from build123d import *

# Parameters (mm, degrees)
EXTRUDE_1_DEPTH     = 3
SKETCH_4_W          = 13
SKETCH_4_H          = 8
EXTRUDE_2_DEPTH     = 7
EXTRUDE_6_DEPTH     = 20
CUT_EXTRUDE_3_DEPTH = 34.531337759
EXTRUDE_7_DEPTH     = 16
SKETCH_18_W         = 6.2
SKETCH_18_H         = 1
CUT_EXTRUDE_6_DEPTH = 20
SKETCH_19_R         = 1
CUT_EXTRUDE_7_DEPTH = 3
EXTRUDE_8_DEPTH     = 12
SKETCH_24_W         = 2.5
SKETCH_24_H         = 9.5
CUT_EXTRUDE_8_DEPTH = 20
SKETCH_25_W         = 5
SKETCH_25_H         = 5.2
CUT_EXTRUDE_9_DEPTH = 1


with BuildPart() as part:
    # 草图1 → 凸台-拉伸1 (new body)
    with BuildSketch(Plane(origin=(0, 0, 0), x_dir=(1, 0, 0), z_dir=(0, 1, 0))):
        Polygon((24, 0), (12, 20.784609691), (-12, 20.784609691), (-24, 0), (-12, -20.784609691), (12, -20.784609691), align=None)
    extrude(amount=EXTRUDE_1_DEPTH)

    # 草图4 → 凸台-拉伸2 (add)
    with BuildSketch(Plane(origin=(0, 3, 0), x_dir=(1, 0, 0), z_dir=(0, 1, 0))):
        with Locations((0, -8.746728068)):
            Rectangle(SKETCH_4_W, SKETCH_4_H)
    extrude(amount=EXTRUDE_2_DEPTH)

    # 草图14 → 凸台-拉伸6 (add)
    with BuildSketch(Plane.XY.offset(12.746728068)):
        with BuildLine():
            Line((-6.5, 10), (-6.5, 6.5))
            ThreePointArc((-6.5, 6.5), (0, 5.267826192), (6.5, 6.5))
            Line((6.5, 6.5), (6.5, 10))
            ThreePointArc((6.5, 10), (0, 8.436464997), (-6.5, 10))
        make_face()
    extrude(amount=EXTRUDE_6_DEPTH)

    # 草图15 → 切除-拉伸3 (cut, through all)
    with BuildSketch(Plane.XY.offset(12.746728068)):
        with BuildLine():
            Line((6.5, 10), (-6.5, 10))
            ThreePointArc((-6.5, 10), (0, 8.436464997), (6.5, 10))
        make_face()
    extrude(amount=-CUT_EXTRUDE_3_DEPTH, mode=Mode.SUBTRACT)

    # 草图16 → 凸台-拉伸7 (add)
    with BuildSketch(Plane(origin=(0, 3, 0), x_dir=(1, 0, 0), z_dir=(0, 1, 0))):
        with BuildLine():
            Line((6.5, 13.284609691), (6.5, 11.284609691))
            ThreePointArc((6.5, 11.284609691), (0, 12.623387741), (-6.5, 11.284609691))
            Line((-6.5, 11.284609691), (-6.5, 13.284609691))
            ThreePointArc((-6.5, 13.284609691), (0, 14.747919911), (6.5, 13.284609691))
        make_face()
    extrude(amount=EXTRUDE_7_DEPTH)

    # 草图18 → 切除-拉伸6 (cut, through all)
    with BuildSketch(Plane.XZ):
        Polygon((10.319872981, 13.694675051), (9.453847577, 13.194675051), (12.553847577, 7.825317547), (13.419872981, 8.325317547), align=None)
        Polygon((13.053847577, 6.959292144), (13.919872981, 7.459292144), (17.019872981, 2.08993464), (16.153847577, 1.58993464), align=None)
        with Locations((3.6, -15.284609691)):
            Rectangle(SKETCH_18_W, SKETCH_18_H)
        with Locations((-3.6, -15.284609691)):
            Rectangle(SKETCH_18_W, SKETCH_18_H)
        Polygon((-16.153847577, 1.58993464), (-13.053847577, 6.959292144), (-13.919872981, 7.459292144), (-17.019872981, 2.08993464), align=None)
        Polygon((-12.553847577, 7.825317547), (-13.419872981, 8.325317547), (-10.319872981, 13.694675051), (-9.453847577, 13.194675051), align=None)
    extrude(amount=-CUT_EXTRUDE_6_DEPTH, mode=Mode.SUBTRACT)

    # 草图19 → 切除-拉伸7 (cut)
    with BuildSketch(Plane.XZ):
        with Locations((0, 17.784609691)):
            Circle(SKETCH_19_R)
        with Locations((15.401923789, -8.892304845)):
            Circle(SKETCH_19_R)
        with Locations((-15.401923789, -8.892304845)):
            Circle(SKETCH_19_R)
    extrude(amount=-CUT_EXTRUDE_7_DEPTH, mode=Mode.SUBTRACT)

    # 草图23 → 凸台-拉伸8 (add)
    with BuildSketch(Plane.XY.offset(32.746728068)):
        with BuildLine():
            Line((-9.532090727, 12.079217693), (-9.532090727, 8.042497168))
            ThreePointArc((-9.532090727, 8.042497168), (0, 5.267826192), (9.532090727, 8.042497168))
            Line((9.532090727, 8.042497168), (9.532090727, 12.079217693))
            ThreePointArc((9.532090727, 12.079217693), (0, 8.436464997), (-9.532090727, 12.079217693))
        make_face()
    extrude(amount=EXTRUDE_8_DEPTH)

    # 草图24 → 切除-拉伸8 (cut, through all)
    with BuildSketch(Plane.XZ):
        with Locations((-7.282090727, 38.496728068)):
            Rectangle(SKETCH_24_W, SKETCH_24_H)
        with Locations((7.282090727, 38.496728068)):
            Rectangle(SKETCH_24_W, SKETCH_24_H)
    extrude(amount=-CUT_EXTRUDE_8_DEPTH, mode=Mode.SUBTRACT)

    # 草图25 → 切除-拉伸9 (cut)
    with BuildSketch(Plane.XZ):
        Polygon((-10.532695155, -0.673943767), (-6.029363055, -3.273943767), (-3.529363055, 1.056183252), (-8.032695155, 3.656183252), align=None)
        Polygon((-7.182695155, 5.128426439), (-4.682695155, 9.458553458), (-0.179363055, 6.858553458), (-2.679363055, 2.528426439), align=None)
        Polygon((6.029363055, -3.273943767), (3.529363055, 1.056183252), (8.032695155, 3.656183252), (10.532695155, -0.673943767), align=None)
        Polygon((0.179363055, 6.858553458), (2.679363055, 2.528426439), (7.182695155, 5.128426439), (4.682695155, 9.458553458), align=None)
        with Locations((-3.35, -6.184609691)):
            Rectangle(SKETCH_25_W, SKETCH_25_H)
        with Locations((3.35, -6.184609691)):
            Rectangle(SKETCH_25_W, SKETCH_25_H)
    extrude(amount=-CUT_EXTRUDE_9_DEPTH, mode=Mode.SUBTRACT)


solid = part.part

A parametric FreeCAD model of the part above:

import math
import FreeCAD as App
import Part
import Sketcher
Q = App.Units.Quantity


def add_polygon(sketch, points):
    """Adds a closed chain of lines whose ends are joined by coincident constraints."""
    first, n = sketch.GeometryCount, len(points)
    for a, b in zip(points, points[1:] + points[:1]):
        sketch.addGeometry(Part.LineSegment(App.Vector(*a, 0), App.Vector(*b, 0)), False)
    for i in range(n):
        sketch.addConstraint(Sketcher.Constraint("Coincident", first + i, 2, first + (i + 1) % n, 1))

doc = App.newDocument("Part")
body = doc.addObject("PartDesign::Body", "Body")

sketch1 = body.newObject("Sketcher::SketchObject", "Sketch")
sketch1.AttachmentSupport = (doc.getObject("XZ_Plane"), [""])
sketch1.MapMode = "FlatFace"
add_polygon(sketch1, [(24, 0), (12, -20.78461), (-12, -20.78461), (-24, 0), (-12, 20.78461), (12, 20.78461)])
sketch1.addConstraint(Sketcher.Constraint("Horizontal", 1))
sketch1.addConstraint(Sketcher.Constraint("Horizontal", 4))
sketch1.addConstraint(Sketcher.Constraint("Symmetric", 0, 2, 3, 2, -1, 1))
sketch1.addConstraint(Sketcher.Constraint("Symmetric", 2, 2, 5, 2, -1, 1))
sketch1.addConstraint(Sketcher.Constraint("PointOnObject", 2, 2, -1))
sketch1.addConstraint(Sketcher.Constraint("Parallel", 2, 5))
sketch1.addConstraint(Sketcher.Constraint("Vertical", 1, 2, 3, 2))
sketch1.addConstraint(Sketcher.Constraint("DistanceX", 1, 2, 1, 1, 24.0))
sketch1.addConstraint(Sketcher.Constraint("Angle", 0, Q("-120 deg")))
sketch1.addConstraint(Sketcher.Constraint("Distance", 0, 24.0))
pad1 = body.newObject("PartDesign::Pad", "Pad")
pad1.Profile = sketch1
pad1.Length = 3
pad1.Reversed = True

sketch2 = body.newObject("Sketcher::SketchObject", "Sketch001")
sketch2.AttachmentSupport = (doc.getObject("XZ_Plane"), [""])
sketch2.MapMode = "FlatFace"
sketch2.AttachmentOffset = App.Placement(App.Vector(0, 0, -3), App.Rotation())
add_polygon(sketch2, [(-6.5, 4.746728), (-6.5, 12.746728), (6.5, 12.746728), (6.5, 4.746728)])
sketch2.addConstraint(Sketcher.Constraint("Vertical", 0))
sketch2.addConstraint(Sketcher.Constraint("Horizontal", 1))
sketch2.addConstraint(Sketcher.Constraint("Vertical", 2))
sketch2.addConstraint(Sketcher.Constraint("Horizontal", 3))
sketch2.addConstraint(Sketcher.Constraint("DistanceX", 1, 1, 1, 2, 13.0))
sketch2.addConstraint(Sketcher.Constraint("DistanceY", 0, 1, 0, 2, 8.0))
sketch2.addConstraint(Sketcher.Constraint("DistanceX", 0, 2, -1, 1, 6.5))
sketch2.addConstraint(Sketcher.Constraint("DistanceY", -1, 1, 0, 2, 12.746728))
pad2 = body.newObject("PartDesign::Pad", "Pad001")
pad2.Profile = sketch2
pad2.Length = 7
pad2.Reversed = True

sketch3 = body.newObject("Sketcher::SketchObject", "Sketch002")
sketch3.AttachmentSupport = (doc.getObject("XY_Plane"), [""])
sketch3.MapMode = "FlatFace"
sketch3.AttachmentOffset = App.Placement(App.Vector(0, 0, 12.746728), App.Rotation())
sketch3.addGeometry(Part.LineSegment(App.Vector(-6.5, 10, 0), App.Vector(-6.5, 6.5, 0)), False)
sketch3.addGeometry(Part.ArcOfCircle(Part.Circle(App.Vector(0, 23.02841, 0), App.Vector(0, 0, 1), 17.760584), math.radians(-111.467842), math.radians(-68.532158)), False)
sketch3.addGeometry(Part.LineSegment(App.Vector(6.5, 6.5, 0), App.Vector(6.5, 10, 0)), False)
sketch3.addGeometry(Part.ArcOfCircle(Part.Circle(App.Vector(0, 22.729283, 0), App.Vector(0, 0, 1), 14.292818), math.radians(-117.050385), math.radians(-62.949615)), False)
sketch3.addConstraint(Sketcher.Constraint("Coincident", 0, 2, 1, 1))
sketch3.addConstraint(Sketcher.Constraint("Coincident", 1, 2, 2, 1))
sketch3.addConstraint(Sketcher.Constraint("Coincident", 2, 2, 3, 2))
sketch3.addConstraint(Sketcher.Constraint("Coincident", 3, 1, 0, 1))
sketch3.addConstraint(Sketcher.Constraint("Vertical", 0))
sketch3.addConstraint(Sketcher.Constraint("Vertical", 2))
sketch3.addConstraint(Sketcher.Constraint("Symmetric", 0, 2, 1, 2, -2))
sketch3.addConstraint(Sketcher.Constraint("PointOnObject", 3, 3, -2))
sketch3.addConstraint(Sketcher.Constraint("DistanceY", 0, 2, 0, 1, 3.5))
sketch3.addConstraint(Sketcher.Constraint("DistanceY", -1, 1, 2, 2, 10.0))
sketch3.addConstraint(Sketcher.Constraint("DistanceX", 0, 2, 1, 2, 13.0))
sketch3.addConstraint(Sketcher.Constraint("Radius", 1, 17.760584))
sketch3.addConstraint(Sketcher.Constraint("Radius", 3, 14.292818))
pad3 = body.newObject("PartDesign::Pad", "Pad002")
pad3.Profile = sketch3
pad3.Length = 20

sketch4 = body.newObject("Sketcher::SketchObject", "Sketch003")
sketch4.AttachmentSupport = (doc.getObject("XY_Plane"), [""])
sketch4.MapMode = "FlatFace"
sketch4.AttachmentOffset = App.Placement(App.Vector(0, 0, 12.746728), App.Rotation())
sketch4.addGeometry(Part.LineSegment(App.Vector(6.5, 10, 0), App.Vector(-6.5, 10, 0)), False)
sketch4.addGeometry(Part.ArcOfCircle(Part.Circle(App.Vector(0, 22.729283, 0), App.Vector(0, 0, 1), 14.292818), math.radians(-117.050385), math.radians(-62.949615)), False)
sketch4.addConstraint(Sketcher.Constraint("Coincident", 0, 1, 1, 2))
sketch4.addConstraint(Sketcher.Constraint("Coincident", 1, 1, 0, 2))
sketch4.addConstraint(Sketcher.Constraint("Horizontal", 0))
sketch4.addConstraint(Sketcher.Constraint("PointOnObject", 1, 3, -2))
sketch4.addConstraint(Sketcher.Constraint("DistanceX", 0, 2, 0, 1, 13.0))
sketch4.addConstraint(Sketcher.Constraint("DistanceY", -1, 1, 0, 1, 10.0))
sketch4.addConstraint(Sketcher.Constraint("Radius", 1, 14.292818))
pocket1 = body.newObject("PartDesign::Pocket", "Pocket")
pocket1.Profile = sketch4
pocket1.Type = "ThroughAll"

sketch5 = body.newObject("Sketcher::SketchObject", "Sketch004")
sketch5.AttachmentSupport = (doc.getObject("XZ_Plane"), [""])
sketch5.MapMode = "FlatFace"
sketch5.AttachmentOffset = App.Placement(App.Vector(0, 0, -3), App.Rotation())
sketch5.addGeometry(Part.LineSegment(App.Vector(6.5, -11.28461, 0), App.Vector(6.5, -13.28461, 0)), False)
sketch5.addGeometry(Part.ArcOfCircle(Part.Circle(App.Vector(0, 0.420182, 0), App.Vector(0, 0, 1), 15.168102), math.radians(-115.374362), math.radians(-64.625638)), False)
sketch5.addGeometry(Part.LineSegment(App.Vector(-6.5, -13.28461, 0), App.Vector(-6.5, -11.28461, 0)), False)
sketch5.addGeometry(Part.ArcOfCircle(Part.Circle(App.Vector(0, 3.825316, 0), App.Vector(0, 0, 1), 16.448704), math.radians(-113.276447), math.radians(-66.723553)), False)
sketch5.addConstraint(Sketcher.Constraint("Coincident", 0, 2, 1, 2))
sketch5.addConstraint(Sketcher.Constraint("Coincident", 1, 1, 2, 1))
sketch5.addConstraint(Sketcher.Constraint("Coincident", 2, 2, 3, 1))
sketch5.addConstraint(Sketcher.Constraint("Coincident", 3, 2, 0, 1))
sketch5.addConstraint(Sketcher.Constraint("Vertical", 0))
sketch5.addConstraint(Sketcher.Constraint("Vertical", 2))
sketch5.addConstraint(Sketcher.Constraint("Symmetric", 0, 2, 1, 1, -2))
sketch5.addConstraint(Sketcher.Constraint("PointOnObject", 3, 3, -2))
sketch5.addConstraint(Sketcher.Constraint("DistanceY", 0, 2, 0, 1, 2.0))
sketch5.addConstraint(Sketcher.Constraint("DistanceX", 1, 1, 0, 2, 13.0))
sketch5.addConstraint(Sketcher.Constraint("Radius", 1, 15.168102))
sketch5.addConstraint(Sketcher.Constraint("Radius", 3, 16.448704))
sketch5.addConstraint(Sketcher.Constraint("DistanceY", -1, 1, 1, 3, 0.420182))
pad4 = body.newObject("PartDesign::Pad", "Pad003")
pad4.Profile = sketch5
pad4.Length = 16
pad4.Reversed = True

sketch6 = body.newObject("Sketcher::SketchObject", "Sketch005")
sketch6.AttachmentSupport = (doc.getObject("XZ_Plane"), [""])
sketch6.MapMode = "FlatFace"
add_polygon(sketch6, [(10.319873, 13.694675), (9.453848, 13.194675), (12.553848, 7.825318), (13.419873, 8.325318)])
add_polygon(sketch6, [(13.919873, 7.459292), (13.053848, 6.959292), (16.153848, 1.589935), (17.019873, 2.089935)])
add_polygon(sketch6, [(0.5, -14.78461), (0.5, -15.78461), (6.7, -15.78461), (6.7, -14.78461)])
add_polygon(sketch6, [(-6.7, -14.78461), (-6.7, -15.78461), (-0.5, -15.78461), (-0.5, -14.78461)])
add_polygon(sketch6, [(-16.153848, 1.589935), (-13.053848, 6.959292), (-13.919873, 7.459292), (-17.019873, 2.089935)])
add_polygon(sketch6, [(-13.419873, 8.325318), (-12.553848, 7.825318), (-9.453848, 13.194675), (-10.319873, 13.694675)])
sketch6.addConstraint(Sketcher.Constraint("Vertical", 8))
sketch6.addConstraint(Sketcher.Constraint("Horizontal", 9))
sketch6.addConstraint(Sketcher.Constraint("Vertical", 10))
sketch6.addConstraint(Sketcher.Constraint("Horizontal", 11))
sketch6.addConstraint(Sketcher.Constraint("Vertical", 12))
sketch6.addConstraint(Sketcher.Constraint("Horizontal", 13))
sketch6.addConstraint(Sketcher.Constraint("Vertical", 14))
sketch6.addConstraint(Sketcher.Constraint("Horizontal", 15))
sketch6.addConstraint(Sketcher.Constraint("Symmetric", 9, 2, 12, 2, -2))
sketch6.addConstraint(Sketcher.Constraint("Symmetric", 11, 2, 14, 2, -2))
sketch6.addConstraint(Sketcher.Constraint("Symmetric", 4, 2, 16, 2, -2))
sketch6.addConstraint(Sketcher.Constraint("Symmetric", 7, 2, 17, 2, -2))
sketch6.addConstraint(Sketcher.Constraint("Symmetric", 6, 2, 18, 2, -2))
sketch6.addConstraint(Sketcher.Constraint("Symmetric", 5, 2, 19, 2, -2))
sketch6.addConstraint(Sketcher.Constraint("Symmetric", 1, 2, 20, 2, -2))
sketch6.addConstraint(Sketcher.Constraint("Symmetric", 0, 2, 21, 2, -2))
sketch6.addConstraint(Sketcher.Constraint("Symmetric", 3, 2, 22, 2, -2))
sketch6.addConstraint(Sketcher.Constraint("Symmetric", 2, 2, 23, 2, -2))
sketch6.addConstraint(Sketcher.Constraint("Perpendicular", 0, 1))
sketch6.addConstraint(Sketcher.Constraint("Perpendicular", 1, 2))
sketch6.addConstraint(Sketcher.Constraint("Perpendicular", 2, 3))
sketch6.addConstraint(Sketcher.Constraint("Perpendicular", 3, 4))
sketch6.addConstraint(Sketcher.Constraint("Perpendicular", 4, 5))
sketch6.addConstraint(Sketcher.Constraint("Perpendicular", 5, 6))
sketch6.addConstraint(Sketcher.Constraint("Perpendicular", 6, 7))
sketch6.addConstraint(Sketcher.Constraint("Equal", 2, 4))
sketch6.addConstraint(Sketcher.Constraint("Equal", 3, 5))
sketch6.addConstraint(Sketcher.Constraint("DistanceY", 8, 2, 8, 1, 1.0))
sketch6.addConstraint(Sketcher.Constraint("Angle", 0, Q("-150 deg")))
sketch6.addConstraint(Sketcher.Constraint("Distance", 0, 1.0))
sketch6.addConstraint(Sketcher.Constraint("DistanceX", 9, 1, 9, 2, 6.2))
sketch6.addConstraint(Sketcher.Constraint("DistanceX", 13, 2, 8, 2, 1.0))
sketch6.addConstraint(Sketcher.Constraint("Distance", 1, 6.2))
sketch6.addConstraint(Sketcher.Constraint("DistanceX", 1, 2, 4, 2, 0.5))
sketch6.addConstraint(Sketcher.Constraint("DistanceY", 8, 2, 4, 2, 22.743902))
sketch6.addConstraint(Sketcher.Constraint("DistanceY", 8, 2, -1, 1, 15.78461))
sketch6.addConstraint(Sketcher.Constraint("DistanceY", 5, 2, 0, 2, 11.60474))
sketch6.addConstraint(Sketcher.Constraint("DistanceX", 16, 2, 3, 2, 23.373721))
pocket2 = body.newObject("PartDesign::Pocket", "Pocket001")
pocket2.Profile = sketch6
pocket2.Type = "ThroughAll"

sketch7 = body.newObject("Sketcher::SketchObject", "Sketch006")
sketch7.AttachmentSupport = (doc.getObject("XZ_Plane"), [""])
sketch7.MapMode = "FlatFace"
sketch7.addGeometry(Part.Circle(App.Vector(0, 17.78461, 0), App.Vector(0, 0, 1), 1), False)
sketch7.addGeometry(Part.Circle(App.Vector(15.401924, -8.892305, 0), App.Vector(0, 0, 1), 1), False)
sketch7.addGeometry(Part.Circle(App.Vector(-15.401924, -8.892305, 0), App.Vector(0, 0, 1), 1), False)
sketch7.addConstraint(Sketcher.Constraint("Equal", 0, 1))
sketch7.addConstraint(Sketcher.Constraint("Equal", 1, 2))
sketch7.addConstraint(Sketcher.Constraint("Symmetric", 1, 3, 2, 3, -2))
sketch7.addConstraint(Sketcher.Constraint("PointOnObject", 0, 3, -2))
sketch7.addConstraint(Sketcher.Constraint("Diameter", 0, 2.0))
sketch7.addConstraint(Sketcher.Constraint("DistanceY", -1, 1, 0, 3, 17.78461))
sketch7.addConstraint(Sketcher.Constraint("DistanceX", -1, 1, 1, 3, 15.401924))
sketch7.addConstraint(Sketcher.Constraint("DistanceY", 1, 3, -1, 1, 8.892305))
pocket3 = body.newObject("PartDesign::Pocket", "Pocket002")
pocket3.Profile = sketch7
pocket3.Length = 3

sketch8 = body.newObject("Sketcher::SketchObject", "Sketch007")
sketch8.AttachmentSupport = (doc.getObject("XY_Plane"), [""])
sketch8.MapMode = "FlatFace"
sketch8.AttachmentOffset = App.Placement(App.Vector(0, 0, 32.746728), App.Rotation())
sketch8.addGeometry(Part.LineSegment(App.Vector(-9.532091, 12.079218, 0), App.Vector(-9.532091, 8.042497, 0)), False)
sketch8.addGeometry(Part.ArcOfCircle(Part.Circle(App.Vector(0, 23.02841, 0), App.Vector(0, 0, 1), 17.760584), math.radians(-122.459219), math.radians(-57.540781)), False)
sketch8.addGeometry(Part.LineSegment(App.Vector(9.532091, 8.042497, 0), App.Vector(9.532091, 12.079218, 0)), False)
sketch8.addGeometry(Part.ArcOfCircle(Part.Circle(App.Vector(0, 22.729283, 0), App.Vector(0, 0, 1), 14.292818), math.radians(-131.829387), math.radians(-48.170613)), False)
sketch8.addConstraint(Sketcher.Constraint("Coincident", 0, 2, 1, 1))
sketch8.addConstraint(Sketcher.Constraint("Coincident", 1, 2, 2, 1))
sketch8.addConstraint(Sketcher.Constraint("Coincident", 2, 2, 3, 2))
sketch8.addConstraint(Sketcher.Constraint("Coincident", 3, 1, 0, 1))
sketch8.addConstraint(Sketcher.Constraint("Vertical", 0))
sketch8.addConstraint(Sketcher.Constraint("Vertical", 2))
sketch8.addConstraint(Sketcher.Constraint("Symmetric", 0, 2, 1, 2, -2))
sketch8.addConstraint(Sketcher.Constraint("PointOnObject", 3, 3, -2))
sketch8.addConstraint(Sketcher.Constraint("Radius", 1, 17.760584))
sketch8.addConstraint(Sketcher.Constraint("Radius", 3, 14.292818))
sketch8.addConstraint(Sketcher.Constraint("DistanceY", 0, 2, 0, 1, 4.036721))
sketch8.addConstraint(Sketcher.Constraint("DistanceY", -1, 1, 1, 3, 23.02841))
sketch8.addConstraint(Sketcher.Constraint("DistanceX", 0, 2, -1, 1, 9.532091))
pad5 = body.newObject("PartDesign::Pad", "Pad004")
pad5.Profile = sketch8
pad5.Length = 12

sketch9 = body.newObject("Sketcher::SketchObject", "Sketch008")
sketch9.AttachmentSupport = (doc.getObject("XZ_Plane"), [""])
sketch9.MapMode = "FlatFace"
add_polygon(sketch9, [(-8.532091, 43.246728), (-8.532091, 33.746728), (-6.032091, 33.746728), (-6.032091, 43.246728)])
add_polygon(sketch9, [(6.032091, 43.246728), (6.032091, 33.746728), (8.532091, 33.746728), (8.532091, 43.246728)])
sketch9.addConstraint(Sketcher.Constraint("Vertical", 0))
sketch9.addConstraint(Sketcher.Constraint("Horizontal", 1))
sketch9.addConstraint(Sketcher.Constraint("Vertical", 2))
sketch9.addConstraint(Sketcher.Constraint("Horizontal", 3))
sketch9.addConstraint(Sketcher.Constraint("Vertical", 4))
sketch9.addConstraint(Sketcher.Constraint("Horizontal", 5))
sketch9.addConstraint(Sketcher.Constraint("Vertical", 6))
sketch9.addConstraint(Sketcher.Constraint("Horizontal", 7))
sketch9.addConstraint(Sketcher.Constraint("Symmetric", 1, 2, 4, 2, -2))
sketch9.addConstraint(Sketcher.Constraint("Symmetric", 3, 2, 6, 2, -2))
sketch9.addConstraint(Sketcher.Constraint("DistanceX", 1, 1, 1, 2, 2.5))
sketch9.addConstraint(Sketcher.Constraint("DistanceY", 0, 2, 0, 1, 9.5))
sketch9.addConstraint(Sketcher.Constraint("DistanceX", 0, 2, -1, 1, 8.532091))
sketch9.addConstraint(Sketcher.Constraint("DistanceY", -1, 1, 0, 2, 33.746728))
pocket4 = body.newObject("PartDesign::Pocket", "Pocket003")
pocket4.Profile = sketch9
pocket4.Type = "ThroughAll"

sketch10 = body.newObject("Sketcher::SketchObject", "Sketch009")
sketch10.AttachmentSupport = (doc.getObject("XZ_Plane"), [""])
sketch10.MapMode = "FlatFace"
add_polygon(sketch10, [(-10.532695, -0.673944), (-6.029363, -3.273944), (-3.529363, 1.056183), (-8.032695, 3.656183)])
add_polygon(sketch10, [(-4.682695, 9.458553), (-7.182695, 5.128426), (-2.679363, 2.528426), (-0.179363, 6.858553)])
add_polygon(sketch10, [(3.529363, 1.056183), (6.029363, -3.273944), (10.532695, -0.673944), (8.032695, 3.656183)])
add_polygon(sketch10, [(0.179363, 6.858553), (2.679363, 2.528426), (7.182695, 5.128426), (4.682695, 9.458553)])
add_polygon(sketch10, [(-5.85, -3.58461), (-5.85, -8.78461), (-0.85, -8.78461), (-0.85, -3.58461)])
add_polygon(sketch10, [(0.85, -3.58461), (0.85, -8.78461), (5.85, -8.78461), (5.85, -3.58461)])
sketch10.addConstraint(Sketcher.Constraint("Vertical", 16))
sketch10.addConstraint(Sketcher.Constraint("Horizontal", 17))
sketch10.addConstraint(Sketcher.Constraint("Vertical", 18))
sketch10.addConstraint(Sketcher.Constraint("Horizontal", 19))
sketch10.addConstraint(Sketcher.Constraint("Vertical", 20))
sketch10.addConstraint(Sketcher.Constraint("Horizontal", 21))
sketch10.addConstraint(Sketcher.Constraint("Vertical", 22))
sketch10.addConstraint(Sketcher.Constraint("Horizontal", 23))
sketch10.addConstraint(Sketcher.Constraint("Symmetric", 0, 2, 8, 2, -2))
sketch10.addConstraint(Sketcher.Constraint("Symmetric", 3, 2, 9, 2, -2))
sketch10.addConstraint(Sketcher.Constraint("Symmetric", 2, 2, 10, 2, -2))
sketch10.addConstraint(Sketcher.Constraint("Symmetric", 1, 2, 11, 2, -2))
sketch10.addConstraint(Sketcher.Constraint("Symmetric", 5, 2, 12, 2, -2))
sketch10.addConstraint(Sketcher.Constraint("Symmetric", 4, 2, 13, 2, -2))
sketch10.addConstraint(Sketcher.Constraint("Symmetric", 7, 2, 14, 2, -2))
sketch10.addConstraint(Sketcher.Constraint("Symmetric", 6, 2, 15, 2, -2))
sketch10.addConstraint(Sketcher.Constraint("Symmetric", 17, 2, 20, 2, -2))
sketch10.addConstraint(Sketcher.Constraint("Symmetric", 19, 2, 22, 2, -2))
sketch10.addConstraint(Sketcher.Constraint("Perpendicular", 0, 1))
sketch10.addConstraint(Sketcher.Constraint("Perpendicular", 1, 2))
sketch10.addConstraint(Sketcher.Constraint("Perpendicular", 2, 3))
sketch10.addConstraint(Sketcher.Constraint("Parallel", 3, 4))
sketch10.addConstraint(Sketcher.Constraint("Perpendicular", 4, 5))
sketch10.addConstraint(Sketcher.Constraint("Perpendicular", 5, 6))
sketch10.addConstraint(Sketcher.Constraint("Perpendicular", 6, 7))
sketch10.addConstraint(Sketcher.Constraint("Equal", 3, 4))
sketch10.addConstraint(Sketcher.Constraint("Equal", 2, 5))
sketch10.addConstraint(Sketcher.Constraint("DistanceX", 17, 1, 17, 2, 5.0))
sketch10.addConstraint(Sketcher.Constraint("Angle", 0, Q("-30 deg")))
sketch10.addConstraint(Sketcher.Constraint("Distance", 1, 5.0))
sketch10.addConstraint(Sketcher.Constraint("DistanceY", 16, 2, 16, 1, 5.2))
sketch10.addConstraint(Sketcher.Constraint("Distance", 0, 5.2))
sketch10.addConstraint(Sketcher.Constraint("DistanceX", 17, 2, 20, 2, 1.7))
sketch10.addConstraint(Sketcher.Constraint("DistanceX", 2, 2, 4, 2, 0.85))
sketch10.addConstraint(Sketcher.Constraint("DistanceY", 16, 2, -1, 1, 8.78461))
sketch10.addConstraint(Sketcher.Constraint("DistanceY", 3, 2, 4, 2, 5.80237))
sketch10.addConstraint(Sketcher.Constraint("DistanceX", 4, 2, 8, 2, 13.212058))
sketch10.addConstraint(Sketcher.Constraint("DistanceY", 0, 2, -1, 1, 3.273944))
pocket5 = body.newObject("PartDesign::Pocket", "Pocket004")
pocket5.Profile = sketch10
pocket5.Length = 1

doc.recompute()
